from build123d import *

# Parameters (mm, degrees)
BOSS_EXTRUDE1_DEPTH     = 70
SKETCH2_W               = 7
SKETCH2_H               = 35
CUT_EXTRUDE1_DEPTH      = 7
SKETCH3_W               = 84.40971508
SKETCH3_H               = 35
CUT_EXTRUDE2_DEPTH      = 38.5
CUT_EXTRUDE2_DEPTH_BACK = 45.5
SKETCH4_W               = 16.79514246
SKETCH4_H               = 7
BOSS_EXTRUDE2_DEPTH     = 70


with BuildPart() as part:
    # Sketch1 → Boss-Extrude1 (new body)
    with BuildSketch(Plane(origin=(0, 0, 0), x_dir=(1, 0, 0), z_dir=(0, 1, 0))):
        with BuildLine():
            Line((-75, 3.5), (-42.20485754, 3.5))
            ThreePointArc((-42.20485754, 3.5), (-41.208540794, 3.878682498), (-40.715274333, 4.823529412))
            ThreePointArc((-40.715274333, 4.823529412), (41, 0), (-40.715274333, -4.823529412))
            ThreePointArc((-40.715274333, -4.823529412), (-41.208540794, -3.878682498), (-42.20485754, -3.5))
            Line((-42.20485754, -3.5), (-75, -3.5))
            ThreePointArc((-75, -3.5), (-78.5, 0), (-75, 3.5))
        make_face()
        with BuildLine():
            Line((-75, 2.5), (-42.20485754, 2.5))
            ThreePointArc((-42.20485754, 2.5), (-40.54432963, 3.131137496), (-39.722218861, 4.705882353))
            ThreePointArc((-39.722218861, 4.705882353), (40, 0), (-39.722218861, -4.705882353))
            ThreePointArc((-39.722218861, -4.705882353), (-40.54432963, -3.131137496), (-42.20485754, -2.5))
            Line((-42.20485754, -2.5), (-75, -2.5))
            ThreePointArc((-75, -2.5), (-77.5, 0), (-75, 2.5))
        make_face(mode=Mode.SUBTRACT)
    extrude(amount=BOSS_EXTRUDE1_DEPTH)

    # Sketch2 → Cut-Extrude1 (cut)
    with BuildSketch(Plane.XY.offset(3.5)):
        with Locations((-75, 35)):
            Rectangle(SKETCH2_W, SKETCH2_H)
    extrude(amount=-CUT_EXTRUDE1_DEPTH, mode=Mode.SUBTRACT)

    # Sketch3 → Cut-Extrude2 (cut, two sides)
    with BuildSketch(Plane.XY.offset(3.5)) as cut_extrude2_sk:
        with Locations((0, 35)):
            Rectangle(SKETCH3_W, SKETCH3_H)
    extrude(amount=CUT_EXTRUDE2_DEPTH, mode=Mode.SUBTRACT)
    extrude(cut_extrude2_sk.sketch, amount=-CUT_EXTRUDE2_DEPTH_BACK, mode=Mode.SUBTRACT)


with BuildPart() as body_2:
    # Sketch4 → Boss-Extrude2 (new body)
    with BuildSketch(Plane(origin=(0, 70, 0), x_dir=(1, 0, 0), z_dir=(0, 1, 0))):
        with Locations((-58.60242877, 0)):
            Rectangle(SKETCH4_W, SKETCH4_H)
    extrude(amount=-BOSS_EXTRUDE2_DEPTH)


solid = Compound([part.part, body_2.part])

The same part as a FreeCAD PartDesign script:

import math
import FreeCAD as App
import Part
import Sketcher


def add_polygon(sketch, points):
    """Adds a closed chain of lines whose ends are joined by coincident constraints."""
    first, n = sketch.GeometryCount, len(points)
    for a, b in zip(points, points[1:] + points[:1]):
        sketch.addGeometry(Part.LineSegment(App.Vector(*a, 0), App.Vector(*b, 0)), False)
    for i in range(n):
        sketch.addConstraint(Sketcher.Constraint("Coincident", first + i, 2, first + (i + 1) % n, 1))

doc = App.newDocument("Part")
body = doc.addObject("PartDesign::Body", "Body")

sketch1 = body.newObject("Sketcher::SketchObject", "Sketch")
sketch1.AttachmentSupport = (doc.getObject("XZ_Plane"), [""])
sketch1.MapMode = "FlatFace"
sketch1.addGeometry([
    Part.LineSegment(App.Vector(-42.2, -3.5, 0), App.Vector(-75, -3.5, 0)),
    Part.ArcOfCircle(Part.Circle(App.Vector(-75, 0, 0), App.Vector(0, 0, 1), 3.5), math.radians(90), math.radians(270)),
    Part.LineSegment(App.Vector(-75, 3.5, 0), App.Vector(-42.2, 3.5, 0)),
    Part.ArcOfCircle(Part.Circle(App.Vector(-42.2, 5, 0), App.Vector(0, 0, 1), 1.5), math.radians(-90), math.radians(-7)),
    Part.ArcOfCircle(Part.Circle(App.Vector(0, 0, 0), App.Vector(0, 0, 1), 41), math.radians(-173), math.radians(173)),
    Part.ArcOfCircle(Part.Circle(App.Vector(-42.2, -5, 0), App.Vector(0, 0, 1), 1.5), math.radians(7), math.radians(90)),
    Part.LineSegment(App.Vector(-75, -2.5, 0), App.Vector(-42.2, -2.5, 0)),
    Part.ArcOfCircle(Part.Circle(App.Vector(-42.2, -5, 0), App.Vector(0, 0, 1), 2.5), math.radians(7), math.radians(90)),
    Part.ArcOfCircle(Part.Circle(App.Vector(0, 0, 0), App.Vector(0, 0, 1), 40), math.radians(-173), math.radians(173)),
    Part.ArcOfCircle(Part.Circle(App.Vector(-42.2, 5, 0), App.Vector(0, 0, 1), 2.5), math.radians(-90), math.radians(-7)),
    Part.LineSegment(App.Vector(-42.2, 2.5, 0), App.Vector(-75, 2.5, 0)),
    Part.ArcOfCircle(Part.Circle(App.Vector(-75, 0, 0), App.Vector(0, 0, 1), 2.5), math.radians(90), math.radians(270)),
], False)
sketch1.addConstraint([
    Sketcher.Constraint("Tangent", 0, 2, 1, 2),
    Sketcher.Constraint("Tangent", 1, 1, 2, 1),
    Sketcher.Constraint("Tangent", 2, 2, 3, 1),
    Sketcher.Constraint("Tangent", 3, 2, 4, 2),
    Sketcher.Constraint("Tangent", 4, 1, 5, 1),
    Sketcher.Constraint("Tangent", 5, 2, 0, 1),
    Sketcher.Constraint("Tangent", 6, 2, 7, 2),
    Sketcher.Constraint("Tangent", 7, 1, 8, 1),
    Sketcher.Constraint("Tangent", 8, 2, 9, 2),
    Sketcher.Constraint("Tangent", 9, 1, 10, 1),
    Sketcher.Constraint("Tangent", 10, 2, 11, 1),
    Sketcher.Constraint("Tangent", 11, 2, 6, 1),
    Sketcher.Constraint("Horizontal", 0),
    Sketcher.Constraint("Horizontal", 2),
    Sketcher.Constraint("Horizontal", 6),
    Sketcher.Constraint("Horizontal", 10),
    Sketcher.Constraint("Coincident", 4, 3, -1, 1),
    Sketcher.Constraint("Coincident", 8, 3, -1, 1),
    Sketcher.Constraint("Coincident", 7, 3, 5, 3),
    Sketcher.Constraint("Coincident", 9, 3, 3, 3),
    Sketcher.Constraint("Equal", 3, 5),
    Sketcher.Constraint("Equal", 9, 11),
    Sketcher.Constraint("PointOnObject", 1, 3, -1),
    Sketcher.Constraint("Vertical", 11, 3, 0, 2),
    Sketcher.Constraint("Radius", 4, 41.0),
    Sketcher.Constraint("Radius", 8, 40.0),
    Sketcher.Constraint("Radius", 1, 3.5),
    Sketcher.Constraint("DistanceX", 1, 3, -1, 1, 75.0),
])
pad1 = body.newObject("PartDesign::Pad", "Pad")
pad1.Profile = sketch1
pad1.Length = 70
pad1.Reversed = True

sketch2 = body.newObject("Sketcher::SketchObject", "Sketch001")
sketch2.AttachmentSupport = (doc.getObject("XY_Plane"), [""])
sketch2.MapMode = "FlatFace"
sketch2.AttachmentOffset = App.Placement(App.Vector(0, 0, 3.5), App.Rotation())
add_polygon(sketch2, [(-78, 52), (-78, 18), (-72, 18), (-72, 52)])
sketch2.addConstraint([
    Sketcher.Constraint("Vertical", 0),
    Sketcher.Constraint("Horizontal", 1),
    Sketcher.Constraint("Vertical", 2),
    Sketcher.Constraint("Horizontal", 3),
    Sketcher.Constraint("DistanceX", 1, 1, 1, 2, 7.0),
    Sketcher.Constraint("DistanceY", 0, 2, 0, 1, 35.0),
    Sketcher.Constraint("DistanceX", 0, 2, -1, 1, 78.5),
    Sketcher.Constraint("DistanceY", -1, 1, 0, 2, 17.5),
])
pocket1 = body.newObject("PartDesign::Pocket", "Pocket")
pocket1.Profile = sketch2
pocket1.Length = 7

sketch3 = body.newObject("Sketcher::SketchObject", "Sketch002")
sketch3.AttachmentSupport = (doc.getObject("XY_Plane"), [""])
sketch3.MapMode = "FlatFace"
sketch3.AttachmentOffset = App.Placement(App.Vector(0, 0, 3.5), App.Rotation())
add_polygon(sketch3, [(-42, 52), (-42, 18), (42, 18), (42, 52)])
sketch3.addConstraint([
    Sketcher.Constraint("Vertical", 0),
    Sketcher.Constraint("Horizontal", 1),
    Sketcher.Constraint("Vertical", 2),
    Sketcher.Constraint("Horizontal", 3),
    Sketcher.Constraint("DistanceY", 0, 2, 0, 1, 35.0),
    Sketcher.Constraint("DistanceY", -1, 1, 0, 2, 17.5),
    Sketcher.Constraint("DistanceX", 1, 1, 1, 2, 84.409715),
    Sketcher.Constraint("DistanceX", 0, 2, -1, 1, 42.204858),
])
pocket2 = body.newObject("PartDesign::Pocket", "Pocket001")
pocket2.Profile = sketch3
pocket2.Type = "ThroughAll"
pocket2.Midplane = True
body2 = doc.addObject("PartDesign::Body", "Body001")

sketch4 = body2.newObject("Sketcher::SketchObject", "Sketch003")
sketch4.AttachmentSupport = (doc.getObject("XZ_Plane001"), [""])
sketch4.MapMode = "FlatFace"
sketch4.AttachmentOffset = App.Placement(App.Vector(0, 0, -70), App.Rotation())
add_polygon(sketch4, [(-67, -4), (-67, 4), (-50, 4), (-50, -4)])
sketch4.addConstraint([
    Sketcher.Constraint("Vertical", 0),
    Sketcher.Constraint("Horizontal", 1),
    Sketcher.Constraint("Vertical", 2),
    Sketcher.Constraint("Horizontal", 3),
    Sketcher.Constraint("DistanceY", 0, 1, 0, 2, 7.0),
    Sketcher.Constraint("DistanceX", 0, 2, -1, 1, 67.0),
    Sketcher.Constraint("DistanceY", -1, 1, 0, 2, 3.5),
    Sketcher.Constraint("DistanceX", 1, 1, 1, 2, 16.795142),
])
pad2 = body2.newObject("PartDesign::Pad", "Pad001")
pad2.Profile = sketch4
pad2.Length = 70

doc.recompute()
